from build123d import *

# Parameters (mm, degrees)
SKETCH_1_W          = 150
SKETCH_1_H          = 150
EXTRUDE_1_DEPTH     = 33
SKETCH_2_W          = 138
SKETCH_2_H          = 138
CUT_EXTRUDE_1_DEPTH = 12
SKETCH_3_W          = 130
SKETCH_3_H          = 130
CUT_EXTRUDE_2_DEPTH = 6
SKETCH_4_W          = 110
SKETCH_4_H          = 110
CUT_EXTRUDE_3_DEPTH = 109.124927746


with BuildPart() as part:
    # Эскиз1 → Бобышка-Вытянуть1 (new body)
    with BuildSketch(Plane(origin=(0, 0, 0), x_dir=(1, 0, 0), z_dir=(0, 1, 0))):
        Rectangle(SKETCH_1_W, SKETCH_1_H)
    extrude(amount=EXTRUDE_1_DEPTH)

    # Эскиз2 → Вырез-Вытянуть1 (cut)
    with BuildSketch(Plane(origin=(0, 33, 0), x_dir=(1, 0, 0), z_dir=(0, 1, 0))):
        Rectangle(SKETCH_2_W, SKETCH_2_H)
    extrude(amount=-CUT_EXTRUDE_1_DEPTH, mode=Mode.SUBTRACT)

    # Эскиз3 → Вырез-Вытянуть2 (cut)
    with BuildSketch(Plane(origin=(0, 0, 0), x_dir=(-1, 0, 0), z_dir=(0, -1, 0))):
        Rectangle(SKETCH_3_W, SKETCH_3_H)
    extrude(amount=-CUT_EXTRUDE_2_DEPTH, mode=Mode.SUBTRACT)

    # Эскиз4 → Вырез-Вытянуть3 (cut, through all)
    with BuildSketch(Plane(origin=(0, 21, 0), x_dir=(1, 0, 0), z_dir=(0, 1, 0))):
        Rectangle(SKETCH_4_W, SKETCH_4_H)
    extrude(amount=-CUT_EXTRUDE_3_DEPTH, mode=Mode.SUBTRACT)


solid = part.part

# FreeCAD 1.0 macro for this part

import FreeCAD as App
import Part
import Sketcher


def add_polygon(sketch, points):
    """Adds a closed chain of lines whose ends are joined by coincident constraints."""
    first, n = sketch.GeometryCount, len(points)
    for a, b in zip(points, points[1:] + points[:1]):
        sketch.addGeometry(Part.LineSegment(App.Vector(*a, 0), App.Vector(*b, 0)), False)
    for i in range(n):
        sketch.addConstraint(Sketcher.Constraint("Coincident", first + i, 2, first + (i + 1) % n, 1))

doc = App.newDocument("Part")
body = doc.addObject("PartDesign::Body", "Body")

# Sketch on XZ plane
sketch1 = doc.addObject("Sketcher::SketchObject", "Sketch")
body.addObject(sketch1)
sketch1.AttachmentSupport = (doc.XZ_Plane, [""])
sketch1.MapMode = "FlatFace"
add_polygon(sketch1, [(-75, -75), (-75, 75), (75, 75), (75, -75)])  # lines 0-3
sketch1.addConstraint([
    Sketcher.Constraint("Vertical", 0),
    Sketcher.Constraint("Horizontal", 1),
    Sketcher.Constraint("Vertical", 2),
    Sketcher.Constraint("Horizontal", 3),
    Sketcher.Constraint("Symmetric", 0, 2, 2, 2, -1, 1),
    Sketcher.Constraint("Equal", 3, 0),
    Sketcher.Constraint("DistanceX", 1, 1, 1, 2, 150.0),
])
pad1 = doc.addObject("PartDesign::Pad", "Pad")
body.addObject(pad1)
pad1.Profile = sketch1
pad1.Length = 33
pad1.Reversed = True

# Sketch on XZ plane
sketch2 = doc.addObject("Sketcher::SketchObject", "Sketch001")
body.addObject(sketch2)
sketch2.AttachmentSupport = (doc.XZ_Plane, [""])
sketch2.MapMode = "FlatFace"
sketch2.AttachmentOffset = App.Placement(App.Vector(0, 0, -33), App.Rotation())
add_polygon(sketch2, [(-69, -69), (-69, 69), (69, 69), (69, -69)])  # lines 0-3
sketch2.addConstraint([
    Sketcher.Constraint("Vertical", 0),
    Sketcher.Constraint("Horizontal", 1),
    Sketcher.Constraint("Vertical", 2),
    Sketcher.Constraint("Horizontal", 3),
    Sketcher.Constraint("Symmetric", 0, 2, 2, 2, -1, 1),
    Sketcher.Constraint("Equal", 3, 0),
    Sketcher.Constraint("DistanceX", 1, 1, 1, 2, 138.0),
])
pocket1 = doc.addObject("PartDesign::Pocket", "Pocket")
body.addObject(pocket1)
pocket1.Profile = sketch2
pocket1.Length = 12
pocket1.Reversed = True

# Sketch on XZ plane
sketch3 = doc.addObject("Sketcher::SketchObject", "Sketch002")
body.addObject(sketch3)
sketch3.AttachmentSupport = (doc.XZ_Plane, [""])
sketch3.MapMode = "FlatFace"
add_polygon(sketch3, [(65, -65), (65, 65), (-65, 65), (-65, -65)])  # lines 0-3
sketch3.addConstraint([
    Sketcher.Constraint("Vertical", 0),
    Sketcher.Constraint("Horizontal", 1),
    Sketcher.Constraint("Vertical", 2),
    Sketcher.Constraint("Horizontal", 3),
    Sketcher.Constraint("Symmetric", 0, 2, 2, 2, -1, 1),
    Sketcher.Constraint("Equal", 3, 0),
    Sketcher.Constraint("DistanceX", 1, 2, 1, 1, 130.0),
])
pocket2 = doc.addObject("PartDesign::Pocket", "Pocket001")
body.addObject(pocket2)
pocket2.Profile = sketch3
pocket2.Length = 6

# Sketch on XZ plane
sketch4 = doc.addObject("Sketcher::SketchObject", "Sketch003")
body.addObject(sketch4)
sketch4.AttachmentSupport = (doc.XZ_Plane, [""])
sketch4.MapMode = "FlatFace"
sketch4.AttachmentOffset = App.Placement(App.Vector(0, 0, -21), App.Rotation())
add_polygon(sketch4, [(-55, -55), (-55, 55), (55, 55), (55, -55)])  # lines 0-3
sketch4.addConstraint([
    Sketcher.Constraint("Vertical", 0),
    Sketcher.Constraint("Horizontal", 1),
    Sketcher.Constraint("Vertical", 2),
    Sketcher.Constraint("Horizontal", 3),
    Sketcher.Constraint("Symmetric", 0, 2, 2, 2, -1, 1),
    Sketcher.Constraint("Equal", 3, 0),
    Sketcher.Constraint("DistanceX", 1, 1, 1, 2, 110.0),
])
pocket3 = doc.addObject("PartDesign::Pocket", "Pocket002")
body.addObject(pocket3)
pocket3.Profile = sketch4
pocket3.Type = "ThroughAll"
pocket3.Reversed = True

doc.recompute()
